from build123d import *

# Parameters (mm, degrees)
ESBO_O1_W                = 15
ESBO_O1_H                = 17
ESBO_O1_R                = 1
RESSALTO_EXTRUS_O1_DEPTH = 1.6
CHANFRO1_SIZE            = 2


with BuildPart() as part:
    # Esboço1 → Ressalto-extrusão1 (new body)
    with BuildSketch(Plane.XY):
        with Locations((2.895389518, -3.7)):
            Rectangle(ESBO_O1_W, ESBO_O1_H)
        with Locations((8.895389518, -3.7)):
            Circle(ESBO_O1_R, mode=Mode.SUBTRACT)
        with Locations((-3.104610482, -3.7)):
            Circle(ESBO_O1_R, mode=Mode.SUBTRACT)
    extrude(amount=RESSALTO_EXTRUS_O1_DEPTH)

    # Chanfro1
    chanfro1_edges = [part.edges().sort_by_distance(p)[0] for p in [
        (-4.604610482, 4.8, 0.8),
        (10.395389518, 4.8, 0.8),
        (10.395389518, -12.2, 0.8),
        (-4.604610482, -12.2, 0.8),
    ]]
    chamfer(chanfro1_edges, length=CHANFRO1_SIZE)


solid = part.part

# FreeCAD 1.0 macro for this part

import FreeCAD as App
import Part
import Sketcher


def edges_at(feature, points):
    """Names of the edges that pass closest to the given points."""
    edges = feature.Shape.Edges
    near = lambda p: min(range(len(edges)), key=lambda i: edges[i].distToShape(Part.Vertex(*p))[0])
    return sorted({f"Edge{near(p) + 1}" for p in points})


def add_polygon(sketch, points):
    """Adds a closed chain of lines whose ends are joined by coincident constraints."""
    first, n = sketch.GeometryCount, len(points)
    for a, b in zip(points, points[1:] + points[:1]):
        sketch.addGeometry(Part.LineSegment(App.Vector(*a, 0), App.Vector(*b, 0)), False)
    for i in range(n):
        sketch.addConstraint(Sketcher.Constraint("Coincident", first + i, 2, first + (i + 1) % n, 1))

doc = App.newDocument("Part")
params = doc.addObject("Spreadsheet::Sheet", "Params")
for row, (alias, value) in enumerate([
    ("sketch1_diameter", "2 mm"),
    ("sketch1_width", "15 mm"),
    ("sketch1_height", "17 mm"),
    ("pad1_length", "1.6 mm"),
    ("chamfer_size", "2 mm"),
], start=1):
    params.set(f"A{row}", alias)
    params.set(f"B{row}", "=" + value)
    params.setAlias(f"B{row}", alias)

body = doc.addObject("PartDesign::Body", "Body")

# Sketch on XY plane
sketch1 = doc.addObject("Sketcher::SketchObject", "Sketch")
body.addObject(sketch1)
sketch1.AttachmentSupport = (doc.XY_Plane, [""])
sketch1.MapMode = "FlatFace"
add_polygon(sketch1, [(-4.6, 4.8), (-4.6, -12.2), (10.4, -12.2), (10.4, 4.8)])  # lines 0-3
sketch1.addGeometry(Part.Circle(App.Vector(-3.1, -3.7, 0), App.Vector(0, 0, 1), 1), False)  # 4
sketch1.addGeometry(Part.Circle(App.Vector(8.9, -3.7, 0), App.Vector(0, 0, 1), 1), False)  # 5
sketch1.addConstraint(Sketcher.Constraint("Vertical", 0))
sketch1.addConstraint(Sketcher.Constraint("Horizontal", 1))
sketch1.addConstraint(Sketcher.Constraint("Vertical", 2))
sketch1.addConstraint(Sketcher.Constraint("Horizontal", 3))
sketch1.addConstraint(Sketcher.Constraint("Equal", 4, 5))
sketch1.addConstraint(Sketcher.Constraint("Horizontal", 4, 3, 5, 3))
sketch1.addConstraint(Sketcher.Constraint("Diameter", 4, 2.0))
sketch1.addConstraint(Sketcher.Constraint("DistanceX", 1, 1, 1, 2, 15.0))
sketch1.addConstraint(Sketcher.Constraint("DistanceY", 0, 2, 0, 1, 17.0))
sketch1.addConstraint(Sketcher.Constraint("DistanceX", 4, 3, 5, 3, 12.0))
sketch1.addConstraint(Sketcher.Constraint("DistanceY", 4, 3, -1, 1, 3.7))
sketch1.addConstraint(Sketcher.Constraint("DistanceY", 0, 2, -1, 1, 12.2))
sketch1.addConstraint(Sketcher.Constraint("DistanceX", 0, 2, 4, 3, 1.5))
sketch1.addConstraint(Sketcher.Constraint("DistanceX", 4, 3, -1, 1, 3.10461))
sketch1.setExpression("Constraints[10]", "Params.sketch1_diameter")
sketch1.setExpression("Constraints[11]", "Params.sketch1_width")
sketch1.setExpression("Constraints[12]", "Params.sketch1_height")
pad1 = doc.addObject("PartDesign::Pad", "Pad")
body.addObject(pad1)
pad1.Profile = sketch1
pad1.setExpression("Length", "Params.pad1_length")
doc.recompute()

chamfer = doc.addObject("PartDesign::Chamfer", "Chamfer")
body.addObject(chamfer)
chamfer.Base = (pad1, edges_at(pad1, [
    (-4.605, 4.8, 0.8),
    (10.395, 4.8, 0.8),
    (10.395, -12.2, 0.8),
    (-4.605, -12.2, 0.8),
]))
chamfer.setExpression("Size", "Params.chamfer_size")

doc.recompute()
